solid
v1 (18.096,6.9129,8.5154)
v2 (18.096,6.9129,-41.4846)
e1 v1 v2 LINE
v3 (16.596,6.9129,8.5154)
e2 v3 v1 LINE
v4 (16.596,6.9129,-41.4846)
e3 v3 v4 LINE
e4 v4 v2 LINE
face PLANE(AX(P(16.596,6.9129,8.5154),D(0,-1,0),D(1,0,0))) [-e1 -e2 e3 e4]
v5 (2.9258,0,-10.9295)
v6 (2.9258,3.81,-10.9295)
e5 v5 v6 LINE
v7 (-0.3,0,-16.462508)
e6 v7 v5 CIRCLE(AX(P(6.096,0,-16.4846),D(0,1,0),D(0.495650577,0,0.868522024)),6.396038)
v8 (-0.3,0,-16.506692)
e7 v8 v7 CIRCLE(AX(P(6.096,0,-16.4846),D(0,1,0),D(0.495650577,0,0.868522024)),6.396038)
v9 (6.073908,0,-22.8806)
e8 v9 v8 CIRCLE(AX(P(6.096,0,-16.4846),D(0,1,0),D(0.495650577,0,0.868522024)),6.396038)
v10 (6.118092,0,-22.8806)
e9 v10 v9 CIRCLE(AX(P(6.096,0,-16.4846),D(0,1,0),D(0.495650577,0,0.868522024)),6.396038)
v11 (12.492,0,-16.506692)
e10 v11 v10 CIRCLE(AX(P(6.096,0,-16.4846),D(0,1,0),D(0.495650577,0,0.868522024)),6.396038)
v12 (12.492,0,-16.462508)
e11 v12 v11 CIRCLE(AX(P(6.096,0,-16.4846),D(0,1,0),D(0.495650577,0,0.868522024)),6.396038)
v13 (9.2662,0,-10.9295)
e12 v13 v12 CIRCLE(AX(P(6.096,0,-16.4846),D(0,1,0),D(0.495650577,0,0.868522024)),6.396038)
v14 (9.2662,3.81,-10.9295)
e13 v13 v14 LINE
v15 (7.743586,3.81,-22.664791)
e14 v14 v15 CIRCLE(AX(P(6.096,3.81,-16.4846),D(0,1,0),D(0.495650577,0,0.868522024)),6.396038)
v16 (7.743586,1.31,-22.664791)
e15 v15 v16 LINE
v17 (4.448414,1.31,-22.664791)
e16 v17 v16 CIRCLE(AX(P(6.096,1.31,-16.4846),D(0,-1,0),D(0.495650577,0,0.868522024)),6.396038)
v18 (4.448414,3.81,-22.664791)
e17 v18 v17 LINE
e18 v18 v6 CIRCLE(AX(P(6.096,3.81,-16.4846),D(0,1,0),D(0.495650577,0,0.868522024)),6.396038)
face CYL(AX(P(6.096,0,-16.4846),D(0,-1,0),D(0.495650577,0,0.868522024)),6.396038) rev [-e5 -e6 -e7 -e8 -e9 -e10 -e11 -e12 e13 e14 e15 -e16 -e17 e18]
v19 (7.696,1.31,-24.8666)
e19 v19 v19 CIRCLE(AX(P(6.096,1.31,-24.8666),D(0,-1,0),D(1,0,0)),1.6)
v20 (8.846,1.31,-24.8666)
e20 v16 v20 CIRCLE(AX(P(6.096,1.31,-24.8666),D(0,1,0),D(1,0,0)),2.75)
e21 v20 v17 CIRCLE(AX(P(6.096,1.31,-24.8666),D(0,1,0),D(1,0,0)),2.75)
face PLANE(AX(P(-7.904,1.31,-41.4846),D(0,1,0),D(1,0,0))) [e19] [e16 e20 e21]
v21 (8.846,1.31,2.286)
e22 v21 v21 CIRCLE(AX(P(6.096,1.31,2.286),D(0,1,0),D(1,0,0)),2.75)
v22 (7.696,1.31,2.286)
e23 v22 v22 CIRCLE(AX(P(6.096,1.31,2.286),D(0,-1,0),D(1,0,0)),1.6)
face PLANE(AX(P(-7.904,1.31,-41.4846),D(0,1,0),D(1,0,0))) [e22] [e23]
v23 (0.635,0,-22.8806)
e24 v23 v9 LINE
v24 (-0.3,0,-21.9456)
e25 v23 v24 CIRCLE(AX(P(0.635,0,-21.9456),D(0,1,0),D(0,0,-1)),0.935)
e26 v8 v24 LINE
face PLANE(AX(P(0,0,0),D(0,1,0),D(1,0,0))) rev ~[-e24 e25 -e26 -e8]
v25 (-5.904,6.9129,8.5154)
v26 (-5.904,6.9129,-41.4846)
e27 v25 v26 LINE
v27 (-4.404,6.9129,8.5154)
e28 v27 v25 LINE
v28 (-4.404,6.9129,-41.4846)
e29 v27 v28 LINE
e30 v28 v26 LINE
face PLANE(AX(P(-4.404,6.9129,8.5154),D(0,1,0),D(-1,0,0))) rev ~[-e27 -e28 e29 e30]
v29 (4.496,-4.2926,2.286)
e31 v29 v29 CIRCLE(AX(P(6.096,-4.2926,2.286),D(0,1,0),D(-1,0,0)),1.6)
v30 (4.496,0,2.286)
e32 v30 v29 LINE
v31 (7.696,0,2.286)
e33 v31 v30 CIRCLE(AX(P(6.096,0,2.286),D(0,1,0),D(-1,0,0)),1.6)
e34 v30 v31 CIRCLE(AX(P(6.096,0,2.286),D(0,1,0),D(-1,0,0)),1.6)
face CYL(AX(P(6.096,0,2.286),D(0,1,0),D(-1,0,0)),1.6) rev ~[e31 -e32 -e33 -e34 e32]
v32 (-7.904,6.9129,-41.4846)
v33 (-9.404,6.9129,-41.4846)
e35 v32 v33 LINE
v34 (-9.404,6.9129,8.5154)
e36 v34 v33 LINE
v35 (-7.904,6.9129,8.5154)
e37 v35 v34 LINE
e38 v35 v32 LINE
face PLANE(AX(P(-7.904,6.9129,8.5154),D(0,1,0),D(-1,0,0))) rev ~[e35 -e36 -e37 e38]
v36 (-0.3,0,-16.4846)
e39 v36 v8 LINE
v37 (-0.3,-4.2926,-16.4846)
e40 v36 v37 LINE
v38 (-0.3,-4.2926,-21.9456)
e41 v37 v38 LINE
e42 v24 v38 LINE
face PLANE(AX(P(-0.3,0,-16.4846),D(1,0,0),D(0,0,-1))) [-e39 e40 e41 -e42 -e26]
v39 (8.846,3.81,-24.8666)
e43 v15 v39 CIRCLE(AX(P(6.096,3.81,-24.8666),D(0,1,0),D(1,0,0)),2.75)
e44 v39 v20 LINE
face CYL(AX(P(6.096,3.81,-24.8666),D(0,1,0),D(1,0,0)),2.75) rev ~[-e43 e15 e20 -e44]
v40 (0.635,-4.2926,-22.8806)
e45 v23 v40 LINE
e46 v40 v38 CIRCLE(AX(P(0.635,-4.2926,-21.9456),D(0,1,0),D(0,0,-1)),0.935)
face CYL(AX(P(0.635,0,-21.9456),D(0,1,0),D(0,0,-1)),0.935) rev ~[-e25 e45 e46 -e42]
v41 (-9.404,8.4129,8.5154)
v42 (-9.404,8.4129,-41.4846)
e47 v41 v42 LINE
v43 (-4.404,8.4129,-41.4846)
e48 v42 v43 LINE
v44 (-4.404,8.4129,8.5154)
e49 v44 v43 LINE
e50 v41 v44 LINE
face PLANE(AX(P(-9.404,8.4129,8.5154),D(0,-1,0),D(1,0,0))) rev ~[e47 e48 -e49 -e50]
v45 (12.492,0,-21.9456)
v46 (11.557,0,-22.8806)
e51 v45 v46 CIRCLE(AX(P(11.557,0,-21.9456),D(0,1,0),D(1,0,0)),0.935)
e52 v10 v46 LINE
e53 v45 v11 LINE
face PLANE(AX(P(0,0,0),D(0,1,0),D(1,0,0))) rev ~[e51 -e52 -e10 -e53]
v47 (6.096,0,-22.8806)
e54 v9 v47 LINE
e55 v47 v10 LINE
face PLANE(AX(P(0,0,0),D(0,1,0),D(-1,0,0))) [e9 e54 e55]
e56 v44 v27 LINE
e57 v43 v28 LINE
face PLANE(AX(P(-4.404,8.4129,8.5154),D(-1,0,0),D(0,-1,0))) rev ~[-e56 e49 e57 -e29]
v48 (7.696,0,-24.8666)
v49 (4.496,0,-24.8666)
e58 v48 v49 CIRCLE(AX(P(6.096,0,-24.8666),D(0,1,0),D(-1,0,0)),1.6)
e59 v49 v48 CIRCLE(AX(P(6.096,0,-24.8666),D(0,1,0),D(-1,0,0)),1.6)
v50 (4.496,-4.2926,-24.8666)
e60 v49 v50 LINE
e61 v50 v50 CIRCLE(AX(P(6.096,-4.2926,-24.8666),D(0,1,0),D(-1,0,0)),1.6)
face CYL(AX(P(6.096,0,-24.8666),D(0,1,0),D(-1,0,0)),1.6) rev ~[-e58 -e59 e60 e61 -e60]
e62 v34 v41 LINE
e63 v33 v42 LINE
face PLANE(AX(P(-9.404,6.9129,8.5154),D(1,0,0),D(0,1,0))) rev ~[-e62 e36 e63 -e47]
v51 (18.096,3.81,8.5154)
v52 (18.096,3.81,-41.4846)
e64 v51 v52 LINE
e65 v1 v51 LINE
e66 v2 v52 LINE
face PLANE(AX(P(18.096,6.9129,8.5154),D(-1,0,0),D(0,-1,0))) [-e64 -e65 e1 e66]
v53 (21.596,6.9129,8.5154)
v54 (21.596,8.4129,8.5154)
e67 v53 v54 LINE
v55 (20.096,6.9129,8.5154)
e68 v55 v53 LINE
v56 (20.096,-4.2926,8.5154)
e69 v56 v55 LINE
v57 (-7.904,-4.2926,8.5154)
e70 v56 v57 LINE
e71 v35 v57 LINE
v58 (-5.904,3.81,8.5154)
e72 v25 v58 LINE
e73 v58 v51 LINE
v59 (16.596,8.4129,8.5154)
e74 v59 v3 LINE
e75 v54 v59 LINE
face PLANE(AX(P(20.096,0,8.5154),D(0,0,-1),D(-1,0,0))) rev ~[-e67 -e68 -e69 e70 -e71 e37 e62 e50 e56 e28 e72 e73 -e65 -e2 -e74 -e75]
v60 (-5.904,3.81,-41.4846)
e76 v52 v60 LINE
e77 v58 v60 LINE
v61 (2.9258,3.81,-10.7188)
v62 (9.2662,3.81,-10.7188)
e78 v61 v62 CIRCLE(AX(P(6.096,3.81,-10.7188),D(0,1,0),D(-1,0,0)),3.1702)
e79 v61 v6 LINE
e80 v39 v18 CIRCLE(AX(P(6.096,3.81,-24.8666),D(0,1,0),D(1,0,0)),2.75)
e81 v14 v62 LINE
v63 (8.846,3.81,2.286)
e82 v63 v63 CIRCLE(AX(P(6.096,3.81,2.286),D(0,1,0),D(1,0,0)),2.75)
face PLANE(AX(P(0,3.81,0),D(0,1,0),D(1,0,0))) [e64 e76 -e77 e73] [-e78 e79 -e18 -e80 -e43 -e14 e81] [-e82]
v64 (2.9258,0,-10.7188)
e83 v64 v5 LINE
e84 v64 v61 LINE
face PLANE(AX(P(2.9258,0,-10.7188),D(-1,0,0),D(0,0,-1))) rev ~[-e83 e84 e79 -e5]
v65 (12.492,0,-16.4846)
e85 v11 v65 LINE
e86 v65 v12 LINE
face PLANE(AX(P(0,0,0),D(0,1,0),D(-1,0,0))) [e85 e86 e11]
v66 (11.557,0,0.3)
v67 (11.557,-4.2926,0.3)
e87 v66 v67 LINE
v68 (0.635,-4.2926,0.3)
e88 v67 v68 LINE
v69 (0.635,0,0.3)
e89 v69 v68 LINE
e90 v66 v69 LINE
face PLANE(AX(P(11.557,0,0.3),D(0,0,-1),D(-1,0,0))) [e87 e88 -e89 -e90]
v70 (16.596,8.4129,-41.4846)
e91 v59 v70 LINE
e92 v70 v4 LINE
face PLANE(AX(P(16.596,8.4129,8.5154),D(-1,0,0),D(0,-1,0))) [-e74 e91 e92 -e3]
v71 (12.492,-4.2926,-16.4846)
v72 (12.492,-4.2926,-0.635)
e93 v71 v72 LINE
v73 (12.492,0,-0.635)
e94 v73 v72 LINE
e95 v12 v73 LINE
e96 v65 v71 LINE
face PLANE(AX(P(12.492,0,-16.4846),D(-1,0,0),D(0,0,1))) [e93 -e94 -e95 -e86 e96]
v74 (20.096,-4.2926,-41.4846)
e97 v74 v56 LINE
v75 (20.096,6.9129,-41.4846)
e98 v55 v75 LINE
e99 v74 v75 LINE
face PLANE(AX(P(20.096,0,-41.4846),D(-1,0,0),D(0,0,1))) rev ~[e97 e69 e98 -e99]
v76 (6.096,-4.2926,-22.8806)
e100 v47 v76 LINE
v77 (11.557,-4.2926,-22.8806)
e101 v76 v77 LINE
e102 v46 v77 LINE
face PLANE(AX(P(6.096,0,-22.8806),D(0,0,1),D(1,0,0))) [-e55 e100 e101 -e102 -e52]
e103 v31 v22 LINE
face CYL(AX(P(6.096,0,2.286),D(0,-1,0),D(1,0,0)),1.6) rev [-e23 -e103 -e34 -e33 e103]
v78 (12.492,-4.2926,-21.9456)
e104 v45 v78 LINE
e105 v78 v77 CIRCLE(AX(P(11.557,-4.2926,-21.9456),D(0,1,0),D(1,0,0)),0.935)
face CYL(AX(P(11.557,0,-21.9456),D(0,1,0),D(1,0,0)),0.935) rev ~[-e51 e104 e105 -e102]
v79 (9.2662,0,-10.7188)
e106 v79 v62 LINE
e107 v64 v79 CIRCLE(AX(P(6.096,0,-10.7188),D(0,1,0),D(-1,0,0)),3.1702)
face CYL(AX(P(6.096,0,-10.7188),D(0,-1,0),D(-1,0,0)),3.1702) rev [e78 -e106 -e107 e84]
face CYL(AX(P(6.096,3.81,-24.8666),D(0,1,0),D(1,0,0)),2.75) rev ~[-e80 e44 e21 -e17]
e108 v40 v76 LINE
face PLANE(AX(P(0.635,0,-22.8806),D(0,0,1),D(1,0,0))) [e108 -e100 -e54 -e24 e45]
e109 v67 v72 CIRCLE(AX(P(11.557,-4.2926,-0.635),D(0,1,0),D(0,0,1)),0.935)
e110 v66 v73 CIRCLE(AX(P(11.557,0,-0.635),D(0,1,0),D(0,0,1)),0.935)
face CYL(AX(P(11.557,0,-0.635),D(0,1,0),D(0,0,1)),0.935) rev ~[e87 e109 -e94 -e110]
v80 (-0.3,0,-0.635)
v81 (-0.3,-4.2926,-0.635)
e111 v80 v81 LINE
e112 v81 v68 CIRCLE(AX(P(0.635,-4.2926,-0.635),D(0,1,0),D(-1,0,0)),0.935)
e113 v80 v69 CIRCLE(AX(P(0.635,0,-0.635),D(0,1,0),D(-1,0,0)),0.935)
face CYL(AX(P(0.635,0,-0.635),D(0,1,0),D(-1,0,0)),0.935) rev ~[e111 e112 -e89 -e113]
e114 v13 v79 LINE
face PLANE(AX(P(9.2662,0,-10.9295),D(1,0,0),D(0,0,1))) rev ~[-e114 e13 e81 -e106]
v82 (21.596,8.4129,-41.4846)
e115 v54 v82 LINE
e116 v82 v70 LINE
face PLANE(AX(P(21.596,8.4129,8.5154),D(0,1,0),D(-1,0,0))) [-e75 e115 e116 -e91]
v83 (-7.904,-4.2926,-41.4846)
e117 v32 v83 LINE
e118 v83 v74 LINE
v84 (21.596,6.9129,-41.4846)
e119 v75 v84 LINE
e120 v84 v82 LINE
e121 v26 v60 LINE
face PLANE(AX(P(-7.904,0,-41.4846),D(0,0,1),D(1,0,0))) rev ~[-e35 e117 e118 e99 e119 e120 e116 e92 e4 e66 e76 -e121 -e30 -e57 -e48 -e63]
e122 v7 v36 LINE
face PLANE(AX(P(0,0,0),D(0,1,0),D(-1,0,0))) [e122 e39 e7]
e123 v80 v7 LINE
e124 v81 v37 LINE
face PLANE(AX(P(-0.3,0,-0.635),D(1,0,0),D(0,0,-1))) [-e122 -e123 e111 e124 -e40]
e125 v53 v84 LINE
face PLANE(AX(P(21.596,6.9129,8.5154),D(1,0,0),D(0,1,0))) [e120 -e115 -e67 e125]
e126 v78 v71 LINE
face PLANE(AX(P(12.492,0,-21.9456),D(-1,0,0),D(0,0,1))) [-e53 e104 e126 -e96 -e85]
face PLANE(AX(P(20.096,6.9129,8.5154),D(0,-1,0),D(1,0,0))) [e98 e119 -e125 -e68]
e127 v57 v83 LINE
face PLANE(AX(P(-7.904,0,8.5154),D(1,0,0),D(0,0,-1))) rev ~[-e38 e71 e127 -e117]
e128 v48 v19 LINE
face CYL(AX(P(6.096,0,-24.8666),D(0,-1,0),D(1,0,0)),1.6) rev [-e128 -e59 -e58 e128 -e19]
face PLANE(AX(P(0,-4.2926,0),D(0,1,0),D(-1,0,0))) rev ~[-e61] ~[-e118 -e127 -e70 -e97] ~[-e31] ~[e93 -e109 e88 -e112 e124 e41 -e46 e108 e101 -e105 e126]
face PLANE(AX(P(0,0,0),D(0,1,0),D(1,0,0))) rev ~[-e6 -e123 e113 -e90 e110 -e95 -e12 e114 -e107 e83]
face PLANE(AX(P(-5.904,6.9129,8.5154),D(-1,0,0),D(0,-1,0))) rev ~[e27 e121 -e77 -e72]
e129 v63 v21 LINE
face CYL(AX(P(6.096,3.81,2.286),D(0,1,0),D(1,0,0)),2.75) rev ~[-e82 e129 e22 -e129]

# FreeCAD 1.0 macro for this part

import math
import FreeCAD as App
import Part
import Sketcher
from FreeCAD import Vector

doc = App.newDocument("Part")
body = doc.addObject("PartDesign::Body", "Body")

# Sketch on XZ plane
sketch1 = doc.addObject("Sketcher::SketchObject", "Sketch")
body.addObject(sketch1)
sketch1.AttachmentSupport = (doc.XZ_Plane, [""])
sketch1.MapMode = "FlatFace"
sketch1.addGeometry(Part.LineSegment(Vector(-7.9, 8.5, 0), Vector(20.1, 8.5, 0)), False)
sketch1.addGeometry(Part.LineSegment(Vector(20.1, 8.5, 0), Vector(20.1, -41.5, 0)), False)
sketch1.addGeometry(Part.LineSegment(Vector(20.1, -41.5, 0), Vector(-7.9, -41.5, 0)), False)
sketch1.addGeometry(Part.LineSegment(Vector(-7.9, -41.5, 0), Vector(-7.9, 8.5, 0)), False)
sketch1.addGeometry(Part.Circle(Vector(6.1, -24.9, 0), Vector(0, 0, 1), 1.6), False)
sketch1.addGeometry(Part.ArcOfCircle(Part.Circle(Vector(0.6, -0.6, 0), Vector(0, 0, 1), 0.9), math.radians(90), math.radians(180)), False)
sketch1.addGeometry(Part.LineSegment(Vector(-0.3, -0.6, 0), Vector(-0.3, -21.9, 0)), False)
sketch1.addGeometry(Part.ArcOfCircle(Part.Circle(Vector(0.6, -21.9, 0), Vector(0, 0, 1), 0.9), math.radians(180), math.radians(270)), False)
sketch1.addGeometry(Part.LineSegment(Vector(0.6, -22.9, 0), Vector(11.6, -22.9, 0)), False)
sketch1.addGeometry(Part.ArcOfCircle(Part.Circle(Vector(11.6, -21.9, 0), Vector(0, 0, 1), 0.9), math.radians(-90), math.radians(0)), False)
sketch1.addGeometry(Part.LineSegment(Vector(12.5, -21.9, 0), Vector(12.5, -0.6, 0)), False)
sketch1.addGeometry(Part.ArcOfCircle(Part.Circle(Vector(11.6, -0.6, 0), Vector(0, 0, 1), 0.9), math.radians(0), math.radians(90)), False)
sketch1.addGeometry(Part.LineSegment(Vector(11.6, 0.3, 0), Vector(0.6, 0.3, 0)), False)
sketch1.addGeometry(Part.Circle(Vector(6.1, 2.3, 0), Vector(0, 0, 1), 1.6), False)
sketch1.addConstraint(Sketcher.Constraint("Coincident", 0, 2, 1, 1))
sketch1.addConstraint(Sketcher.Constraint("Coincident", 1, 2, 2, 1))
sketch1.addConstraint(Sketcher.Constraint("Coincident", 2, 2, 3, 1))
sketch1.addConstraint(Sketcher.Constraint("Coincident", 3, 2, 0, 1))
sketch1.addConstraint(Sketcher.Constraint("Tangent", 5, 2, 6, 1))
sketch1.addConstraint(Sketcher.Constraint("Tangent", 6, 2, 7, 1))
sketch1.addConstraint(Sketcher.Constraint("Tangent", 7, 2, 8, 1))
sketch1.addConstraint(Sketcher.Constraint("Tangent", 8, 2, 9, 1))
sketch1.addConstraint(Sketcher.Constraint("Tangent", 9, 2, 10, 1))
sketch1.addConstraint(Sketcher.Constraint("Tangent", 10, 2, 11, 1))
sketch1.addConstraint(Sketcher.Constraint("Tangent", 11, 2, 12, 1))
sketch1.addConstraint(Sketcher.Constraint("Tangent", 12, 2, 5, 1))
sketch1.addConstraint(Sketcher.Constraint("Horizontal", 0))
sketch1.addConstraint(Sketcher.Constraint("Vertical", 1))
sketch1.addConstraint(Sketcher.Constraint("Horizontal", 2))
sketch1.addConstraint(Sketcher.Constraint("Vertical", 3))
sketch1.addConstraint(Sketcher.Constraint("Vertical", 6))
sketch1.addConstraint(Sketcher.Constraint("Horizontal", 8))
sketch1.addConstraint(Sketcher.Constraint("Vertical", 10))
sketch1.addConstraint(Sketcher.Constraint("Horizontal", 12))
sketch1.addConstraint(Sketcher.Constraint("Equal", 5, 7))
sketch1.addConstraint(Sketcher.Constraint("Equal", 7, 9))
sketch1.addConstraint(Sketcher.Constraint("Equal", 9, 11))
sketch1.addConstraint(Sketcher.Constraint("Equal", 4, 13))
sketch1.addConstraint(Sketcher.Constraint("Vertical", 4, 3, 13, 3))
sketch1.addConstraint(Sketcher.Constraint("Diameter", 4, 3.2))
sketch1.addConstraint(Sketcher.Constraint("DistanceX", 0, 1, 0, 2, 28.0))
sketch1.addConstraint(Sketcher.Constraint("DistanceY", 1, 2, 1, 1, 50.0))
sketch1.addConstraint(Sketcher.Constraint("DistanceX", 5, 2, -1, 1, 0.3))
sketch1.addConstraint(Sketcher.Constraint("DistanceY", -1, 1, 11, 2, 0.3))
sketch1.addConstraint(Sketcher.Constraint("Radius", 5, 0.935))
sketch1.addConstraint(Sketcher.Constraint("DistanceX", 13, 3, 0, 2, 14.0))
sketch1.addConstraint(Sketcher.Constraint("DistanceX", 8, 1, 8, 2, 10.922))
sketch1.addConstraint(Sketcher.Constraint("DistanceY", 6, 2, 6, 1, 21.3106))
sketch1.addConstraint(Sketcher.Constraint("DistanceX", -1, 1, 4, 3, 6.096))
sketch1.addConstraint(Sketcher.Constraint("DistanceY", -1, 1, 13, 3, 2.286))
sketch1.addConstraint(Sketcher.Constraint("DistanceY", 4, 3, 7, 3, 2.921))
sketch1.addConstraint(Sketcher.Constraint("DistanceY", 9, 3, 0, 2, 30.461))
pad1 = doc.addObject("PartDesign::Pad", "Pad")
body.addObject(pad1)
pad1.Profile = sketch1
pad1.Length = 4.2926

# Sketch on XZ plane
sketch2 = doc.addObject("Sketcher::SketchObject", "Sketch001")
body.addObject(sketch2)
sketch2.AttachmentSupport = (doc.XZ_Plane, [""])
sketch2.MapMode = "FlatFace"
sketch2.addGeometry(Part.LineSegment(Vector(20.1, 8.52, 0), Vector(20.1, -41.48, 0)), False)
sketch2.addGeometry(Part.LineSegment(Vector(20.1, -41.48, 0), Vector(-7.9, -41.48, 0)), False)
sketch2.addGeometry(Part.LineSegment(Vector(-7.9, -41.48, 0), Vector(-7.9, 8.52, 0)), False)
sketch2.addGeometry(Part.LineSegment(Vector(-7.9, 8.52, 0), Vector(20.1, 8.52, 0)), False)
sketch2.addGeometry(Part.Circle(Vector(6.1, 2.29, 0), Vector(0, 0, 1), 1.6), False)
sketch2.addGeometry(Part.ArcOfCircle(Part.Circle(Vector(6.1, -16.48, 0), Vector(0, 0, 1), 6.4), math.radians(120), math.radians(420)), False)
sketch2.addGeometry(Part.LineSegment(Vector(9.27, -10.93, 0), Vector(9.27, -10.72, 0)), False)
sketch2.addGeometry(Part.ArcOfCircle(Part.Circle(Vector(6.1, -10.72, 0), Vector(0, 0, 1), 3.17), math.radians(0), math.radians(180)), False)
sketch2.addGeometry(Part.LineSegment(Vector(2.93, -10.72, 0), Vector(2.93, -10.93, 0)), False)
sketch2.addGeometry(Part.Circle(Vector(6.1, -24.87, 0), Vector(0, 0, 1), 1.6), False)
sketch2.addConstraint(Sketcher.Constraint("Coincident", 0, 2, 1, 1))
sketch2.addConstraint(Sketcher.Constraint("Coincident", 1, 2, 2, 1))
sketch2.addConstraint(Sketcher.Constraint("Coincident", 2, 2, 3, 1))
sketch2.addConstraint(Sketcher.Constraint("Coincident", 3, 2, 0, 1))
sketch2.addConstraint(Sketcher.Constraint("Coincident", 5, 2, 6, 1))
sketch2.addConstraint(Sketcher.Constraint("Tangent", 6, 2, 7, 1))
sketch2.addConstraint(Sketcher.Constraint("Tangent", 7, 2, 8, 1))
sketch2.addConstraint(Sketcher.Constraint("Coincident", 8, 2, 5, 1))
sketch2.addConstraint(Sketcher.Constraint("Vertical", 0))
sketch2.addConstraint(Sketcher.Constraint("Horizontal", 1))
sketch2.addConstraint(Sketcher.Constraint("Vertical", 2))
sketch2.addConstraint(Sketcher.Constraint("Horizontal", 3))
sketch2.addConstraint(Sketcher.Constraint("Vertical", 6))
sketch2.addConstraint(Sketcher.Constraint("Vertical", 8))
sketch2.addConstraint(Sketcher.Constraint("Equal", 4, 9))
sketch2.addConstraint(Sketcher.Constraint("Horizontal", 5, 2, 8, 2))
sketch2.addConstraint(Sketcher.Constraint("Vertical", 4, 3, 5, 3))
sketch2.addConstraint(Sketcher.Constraint("Vertical", 7, 3, 9, 3))
sketch2.addConstraint(Sketcher.Constraint("Diameter", 4, 3.2))
sketch2.addConstraint(Sketcher.Constraint("DistanceX", 1, 2, 1, 1, 28.0))
sketch2.addConstraint(Sketcher.Constraint("DistanceY", 0, 2, 0, 1, 50.0))
sketch2.addConstraint(Sketcher.Constraint("Radius", 5, 6.396))
sketch2.addConstraint(Sketcher.Constraint("DistanceX", 9, 3, 0, 2, 14.0))
sketch2.addConstraint(Sketcher.Constraint("DistanceY", 0, 2, 5, 3, 25.0))
sketch2.addConstraint(Sketcher.Constraint("Radius", 7, 3.1702))
sketch2.addConstraint(Sketcher.Constraint("DistanceY", 6, 1, 6, 2, 0.2107))
sketch2.addConstraint(Sketcher.Constraint("DistanceX", -1, 1, 4, 3, 6.096))
sketch2.addConstraint(Sketcher.Constraint("DistanceY", -1, 1, 4, 3, 2.286))
sketch2.addConstraint(Sketcher.Constraint("DistanceY", 9, 3, 5, 3, 8.382))
sketch2.addConstraint(Sketcher.Constraint("DistanceY", 5, 3, -1, 1, 16.4846))
pad2 = doc.addObject("PartDesign::Pad", "Pad001")
body.addObject(pad2)
pad2.Profile = sketch2
pad2.Length = 3.81
pad2.Reversed = True

# Sketch on XZ plane
sketch3 = doc.addObject("Sketcher::SketchObject", "Sketch002")
body.addObject(sketch3)
sketch3.AttachmentSupport = (doc.XZ_Plane, [""])
sketch3.MapMode = "FlatFace"
sketch3.AttachmentOffset = App.Placement(Vector(0, 0, -3.81), App.Rotation())
sketch3.addGeometry(Part.Circle(Vector(6.1, 2.3, 0), Vector(0, 0, 1), 2.8), False)
sketch3.addGeometry(Part.Circle(Vector(6.1, -24.9, 0), Vector(0, 0, 1), 2.8), False)
sketch3.addConstraint(Sketcher.Constraint("Equal", 0, 1))
sketch3.addConstraint(Sketcher.Constraint("Vertical", 0, 3, 1, 3))
sketch3.addConstraint(Sketcher.Constraint("Diameter", 0, 5.5))
sketch3.addConstraint(Sketcher.Constraint("DistanceX", -1, 1, 0, 3, 6.096))
sketch3.addConstraint(Sketcher.Constraint("DistanceY", -1, 1, 0, 3, 2.286))
sketch3.addConstraint(Sketcher.Constraint("DistanceY", 1, 3, -1, 1, 24.8666))
pocket1 = doc.addObject("PartDesign::Pocket", "Pocket")
body.addObject(pocket1)
pocket1.Profile = sketch3
pocket1.Length = 2.5
pocket1.Reversed = True

# Sketch on XY plane
sketch4 = doc.addObject("Sketcher::SketchObject", "Sketch003")
body.addObject(sketch4)
sketch4.AttachmentSupport = (doc.XY_Plane, [""])
sketch4.MapMode = "FlatFace"
sketch4.AttachmentOffset = App.Placement(Vector(0, 0, 8.5154), App.Rotation())
sketch4.addGeometry(Part.LineSegment(Vector(18.1, 3.8, 0), Vector(20.1, 3.8, 0)), False)
sketch4.addGeometry(Part.LineSegment(Vector(20.1, 3.8, 0), Vector(20.1, 6.9, 0)), False)
sketch4.addGeometry(Part.LineSegment(Vector(20.1, 6.9, 0), Vector(21.6, 6.9, 0)), False)
sketch4.addGeometry(Part.LineSegment(Vector(21.6, 6.9, 0), Vector(21.6, 8.4, 0)), False)
sketch4.addGeometry(Part.LineSegment(Vector(21.6, 8.4, 0), Vector(16.6, 8.4, 0)), False)
sketch4.addGeometry(Part.LineSegment(Vector(16.6, 8.4, 0), Vector(16.6, 6.9, 0)), False)
sketch4.addGeometry(Part.LineSegment(Vector(16.6, 6.9, 0), Vector(18.1, 6.9, 0)), False)
sketch4.addGeometry(Part.LineSegment(Vector(18.1, 6.9, 0), Vector(18.1, 3.8, 0)), False)
sketch4.addGeometry(Part.LineSegment(Vector(-7.9, 3.8, 0), Vector(-5.9, 3.8, 0)), False)
sketch4.addGeometry(Part.LineSegment(Vector(-5.9, 3.8, 0), Vector(-5.9, 6.9, 0)), False)
sketch4.addGeometry(Part.LineSegment(Vector(-5.9, 6.9, 0), Vector(-4.4, 6.9, 0)), False)
sketch4.addGeometry(Part.LineSegment(Vector(-4.4, 6.9, 0), Vector(-4.4, 8.4, 0)), False)
sketch4.addGeometry(Part.LineSegment(Vector(-4.4, 8.4, 0), Vector(-9.4, 8.4, 0)), False)
sketch4.addGeometry(Part.LineSegment(Vector(-9.4, 8.4, 0), Vector(-9.4, 6.9, 0)), False)
sketch4.addGeometry(Part.LineSegment(Vector(-9.4, 6.9, 0), Vector(-7.9, 6.9, 0)), False)
sketch4.addGeometry(Part.LineSegment(Vector(-7.9, 6.9, 0), Vector(-7.9, 3.8, 0)), False)
sketch4.addConstraint(Sketcher.Constraint("Coincident", 0, 2, 1, 1))
sketch4.addConstraint(Sketcher.Constraint("Coincident", 1, 2, 2, 1))
sketch4.addConstraint(Sketcher.Constraint("Coincident", 2, 2, 3, 1))
sketch4.addConstraint(Sketcher.Constraint("Coincident", 3, 2, 4, 1))
sketch4.addConstraint(Sketcher.Constraint("Coincident", 4, 2, 5, 1))
sketch4.addConstraint(Sketcher.Constraint("Coincident", 5, 2, 6, 1))
sketch4.addConstraint(Sketcher.Constraint("Coincident", 6, 2, 7, 1))
sketch4.addConstraint(Sketcher.Constraint("Coincident", 7, 2, 0, 1))
sketch4.addConstraint(Sketcher.Constraint("Coincident", 8, 2, 9, 1))
sketch4.addConstraint(Sketcher.Constraint("Coincident", 9, 2, 10, 1))
sketch4.addConstraint(Sketcher.Constraint("Coincident", 10, 2, 11, 1))
sketch4.addConstraint(Sketcher.Constraint("Coincident", 11, 2, 12, 1))
sketch4.addConstraint(Sketcher.Constraint("Coincident", 12, 2, 13, 1))
sketch4.addConstraint(Sketcher.Constraint("Coincident", 13, 2, 14, 1))
sketch4.addConstraint(Sketcher.Constraint("Coincident", 14, 2, 15, 1))
sketch4.addConstraint(Sketcher.Constraint("Coincident", 15, 2, 8, 1))
sketch4.addConstraint(Sketcher.Constraint("Horizontal", 0))
sketch4.addConstraint(Sketcher.Constraint("Vertical", 1))
sketch4.addConstraint(Sketcher.Constraint("Horizontal", 2))
sketch4.addConstraint(Sketcher.Constraint("Vertical", 3))
sketch4.addConstraint(Sketcher.Constraint("Horizontal", 4))
sketch4.addConstraint(Sketcher.Constraint("Vertical", 5))
sketch4.addConstraint(Sketcher.Constraint("Horizontal", 6))
sketch4.addConstraint(Sketcher.Constraint("Vertical", 7))
sketch4.addConstraint(Sketcher.Constraint("Horizontal", 8))
sketch4.addConstraint(Sketcher.Constraint("Vertical", 9))
sketch4.addConstraint(Sketcher.Constraint("Horizontal", 10))
sketch4.addConstraint(Sketcher.Constraint("Vertical", 11))
sketch4.addConstraint(Sketcher.Constraint("Horizontal", 12))
sketch4.addConstraint(Sketcher.Constraint("Vertical", 13))
sketch4.addConstraint(Sketcher.Constraint("Horizontal", 14))
sketch4.addConstraint(Sketcher.Constraint("Vertical", 15))
sketch4.addConstraint(Sketcher.Constraint("Horizontal", 2, 2, 5, 2))
sketch4.addConstraint(Sketcher.Constraint("Horizontal", 7, 2, 8, 2))
sketch4.addConstraint(Sketcher.Constraint("Horizontal", 6, 2, 9, 2))
sketch4.addConstraint(Sketcher.Constraint("Horizontal", 4, 2, 11, 2))
sketch4.addConstraint(Sketcher.Constraint("Horizontal", 10, 2, 13, 2))
sketch4.addConstraint(Sketcher.Constraint("Equal", 2, 6))
sketch4.addConstraint(Sketcher.Constraint("Equal", 0, 8))
sketch4.addConstraint(Sketcher.Constraint("Equal", 6, 10))
sketch4.addConstraint(Sketcher.Constraint("Equal", 4, 12))
sketch4.addConstraint(Sketcher.Constraint("Equal", 14, 3))
sketch4.addConstraint(Sketcher.Constraint("DistanceX", 0, 1, 0, 2, 2.0))
sketch4.addConstraint(Sketcher.Constraint("DistanceX", 2, 1, 2, 2, 1.5))
sketch4.addConstraint(Sketcher.Constraint("DistanceX", 8, 2, 7, 2, 24.0))
sketch4.addConstraint(Sketcher.Constraint("DistanceY", 1, 1, 1, 2, 3.103))
sketch4.addConstraint(Sketcher.Constraint("DistanceY", -1, 1, 0, 2, 3.81))
sketch4.addConstraint(Sketcher.Constraint("DistanceX", -1, 1, 0, 2, 20.096))
pad3 = doc.addObject("PartDesign::Pad", "Pad002")
body.addObject(pad3)
pad3.Profile = sketch4
pad3.Length = 50
pad3.Reversed = True

doc.recompute()
